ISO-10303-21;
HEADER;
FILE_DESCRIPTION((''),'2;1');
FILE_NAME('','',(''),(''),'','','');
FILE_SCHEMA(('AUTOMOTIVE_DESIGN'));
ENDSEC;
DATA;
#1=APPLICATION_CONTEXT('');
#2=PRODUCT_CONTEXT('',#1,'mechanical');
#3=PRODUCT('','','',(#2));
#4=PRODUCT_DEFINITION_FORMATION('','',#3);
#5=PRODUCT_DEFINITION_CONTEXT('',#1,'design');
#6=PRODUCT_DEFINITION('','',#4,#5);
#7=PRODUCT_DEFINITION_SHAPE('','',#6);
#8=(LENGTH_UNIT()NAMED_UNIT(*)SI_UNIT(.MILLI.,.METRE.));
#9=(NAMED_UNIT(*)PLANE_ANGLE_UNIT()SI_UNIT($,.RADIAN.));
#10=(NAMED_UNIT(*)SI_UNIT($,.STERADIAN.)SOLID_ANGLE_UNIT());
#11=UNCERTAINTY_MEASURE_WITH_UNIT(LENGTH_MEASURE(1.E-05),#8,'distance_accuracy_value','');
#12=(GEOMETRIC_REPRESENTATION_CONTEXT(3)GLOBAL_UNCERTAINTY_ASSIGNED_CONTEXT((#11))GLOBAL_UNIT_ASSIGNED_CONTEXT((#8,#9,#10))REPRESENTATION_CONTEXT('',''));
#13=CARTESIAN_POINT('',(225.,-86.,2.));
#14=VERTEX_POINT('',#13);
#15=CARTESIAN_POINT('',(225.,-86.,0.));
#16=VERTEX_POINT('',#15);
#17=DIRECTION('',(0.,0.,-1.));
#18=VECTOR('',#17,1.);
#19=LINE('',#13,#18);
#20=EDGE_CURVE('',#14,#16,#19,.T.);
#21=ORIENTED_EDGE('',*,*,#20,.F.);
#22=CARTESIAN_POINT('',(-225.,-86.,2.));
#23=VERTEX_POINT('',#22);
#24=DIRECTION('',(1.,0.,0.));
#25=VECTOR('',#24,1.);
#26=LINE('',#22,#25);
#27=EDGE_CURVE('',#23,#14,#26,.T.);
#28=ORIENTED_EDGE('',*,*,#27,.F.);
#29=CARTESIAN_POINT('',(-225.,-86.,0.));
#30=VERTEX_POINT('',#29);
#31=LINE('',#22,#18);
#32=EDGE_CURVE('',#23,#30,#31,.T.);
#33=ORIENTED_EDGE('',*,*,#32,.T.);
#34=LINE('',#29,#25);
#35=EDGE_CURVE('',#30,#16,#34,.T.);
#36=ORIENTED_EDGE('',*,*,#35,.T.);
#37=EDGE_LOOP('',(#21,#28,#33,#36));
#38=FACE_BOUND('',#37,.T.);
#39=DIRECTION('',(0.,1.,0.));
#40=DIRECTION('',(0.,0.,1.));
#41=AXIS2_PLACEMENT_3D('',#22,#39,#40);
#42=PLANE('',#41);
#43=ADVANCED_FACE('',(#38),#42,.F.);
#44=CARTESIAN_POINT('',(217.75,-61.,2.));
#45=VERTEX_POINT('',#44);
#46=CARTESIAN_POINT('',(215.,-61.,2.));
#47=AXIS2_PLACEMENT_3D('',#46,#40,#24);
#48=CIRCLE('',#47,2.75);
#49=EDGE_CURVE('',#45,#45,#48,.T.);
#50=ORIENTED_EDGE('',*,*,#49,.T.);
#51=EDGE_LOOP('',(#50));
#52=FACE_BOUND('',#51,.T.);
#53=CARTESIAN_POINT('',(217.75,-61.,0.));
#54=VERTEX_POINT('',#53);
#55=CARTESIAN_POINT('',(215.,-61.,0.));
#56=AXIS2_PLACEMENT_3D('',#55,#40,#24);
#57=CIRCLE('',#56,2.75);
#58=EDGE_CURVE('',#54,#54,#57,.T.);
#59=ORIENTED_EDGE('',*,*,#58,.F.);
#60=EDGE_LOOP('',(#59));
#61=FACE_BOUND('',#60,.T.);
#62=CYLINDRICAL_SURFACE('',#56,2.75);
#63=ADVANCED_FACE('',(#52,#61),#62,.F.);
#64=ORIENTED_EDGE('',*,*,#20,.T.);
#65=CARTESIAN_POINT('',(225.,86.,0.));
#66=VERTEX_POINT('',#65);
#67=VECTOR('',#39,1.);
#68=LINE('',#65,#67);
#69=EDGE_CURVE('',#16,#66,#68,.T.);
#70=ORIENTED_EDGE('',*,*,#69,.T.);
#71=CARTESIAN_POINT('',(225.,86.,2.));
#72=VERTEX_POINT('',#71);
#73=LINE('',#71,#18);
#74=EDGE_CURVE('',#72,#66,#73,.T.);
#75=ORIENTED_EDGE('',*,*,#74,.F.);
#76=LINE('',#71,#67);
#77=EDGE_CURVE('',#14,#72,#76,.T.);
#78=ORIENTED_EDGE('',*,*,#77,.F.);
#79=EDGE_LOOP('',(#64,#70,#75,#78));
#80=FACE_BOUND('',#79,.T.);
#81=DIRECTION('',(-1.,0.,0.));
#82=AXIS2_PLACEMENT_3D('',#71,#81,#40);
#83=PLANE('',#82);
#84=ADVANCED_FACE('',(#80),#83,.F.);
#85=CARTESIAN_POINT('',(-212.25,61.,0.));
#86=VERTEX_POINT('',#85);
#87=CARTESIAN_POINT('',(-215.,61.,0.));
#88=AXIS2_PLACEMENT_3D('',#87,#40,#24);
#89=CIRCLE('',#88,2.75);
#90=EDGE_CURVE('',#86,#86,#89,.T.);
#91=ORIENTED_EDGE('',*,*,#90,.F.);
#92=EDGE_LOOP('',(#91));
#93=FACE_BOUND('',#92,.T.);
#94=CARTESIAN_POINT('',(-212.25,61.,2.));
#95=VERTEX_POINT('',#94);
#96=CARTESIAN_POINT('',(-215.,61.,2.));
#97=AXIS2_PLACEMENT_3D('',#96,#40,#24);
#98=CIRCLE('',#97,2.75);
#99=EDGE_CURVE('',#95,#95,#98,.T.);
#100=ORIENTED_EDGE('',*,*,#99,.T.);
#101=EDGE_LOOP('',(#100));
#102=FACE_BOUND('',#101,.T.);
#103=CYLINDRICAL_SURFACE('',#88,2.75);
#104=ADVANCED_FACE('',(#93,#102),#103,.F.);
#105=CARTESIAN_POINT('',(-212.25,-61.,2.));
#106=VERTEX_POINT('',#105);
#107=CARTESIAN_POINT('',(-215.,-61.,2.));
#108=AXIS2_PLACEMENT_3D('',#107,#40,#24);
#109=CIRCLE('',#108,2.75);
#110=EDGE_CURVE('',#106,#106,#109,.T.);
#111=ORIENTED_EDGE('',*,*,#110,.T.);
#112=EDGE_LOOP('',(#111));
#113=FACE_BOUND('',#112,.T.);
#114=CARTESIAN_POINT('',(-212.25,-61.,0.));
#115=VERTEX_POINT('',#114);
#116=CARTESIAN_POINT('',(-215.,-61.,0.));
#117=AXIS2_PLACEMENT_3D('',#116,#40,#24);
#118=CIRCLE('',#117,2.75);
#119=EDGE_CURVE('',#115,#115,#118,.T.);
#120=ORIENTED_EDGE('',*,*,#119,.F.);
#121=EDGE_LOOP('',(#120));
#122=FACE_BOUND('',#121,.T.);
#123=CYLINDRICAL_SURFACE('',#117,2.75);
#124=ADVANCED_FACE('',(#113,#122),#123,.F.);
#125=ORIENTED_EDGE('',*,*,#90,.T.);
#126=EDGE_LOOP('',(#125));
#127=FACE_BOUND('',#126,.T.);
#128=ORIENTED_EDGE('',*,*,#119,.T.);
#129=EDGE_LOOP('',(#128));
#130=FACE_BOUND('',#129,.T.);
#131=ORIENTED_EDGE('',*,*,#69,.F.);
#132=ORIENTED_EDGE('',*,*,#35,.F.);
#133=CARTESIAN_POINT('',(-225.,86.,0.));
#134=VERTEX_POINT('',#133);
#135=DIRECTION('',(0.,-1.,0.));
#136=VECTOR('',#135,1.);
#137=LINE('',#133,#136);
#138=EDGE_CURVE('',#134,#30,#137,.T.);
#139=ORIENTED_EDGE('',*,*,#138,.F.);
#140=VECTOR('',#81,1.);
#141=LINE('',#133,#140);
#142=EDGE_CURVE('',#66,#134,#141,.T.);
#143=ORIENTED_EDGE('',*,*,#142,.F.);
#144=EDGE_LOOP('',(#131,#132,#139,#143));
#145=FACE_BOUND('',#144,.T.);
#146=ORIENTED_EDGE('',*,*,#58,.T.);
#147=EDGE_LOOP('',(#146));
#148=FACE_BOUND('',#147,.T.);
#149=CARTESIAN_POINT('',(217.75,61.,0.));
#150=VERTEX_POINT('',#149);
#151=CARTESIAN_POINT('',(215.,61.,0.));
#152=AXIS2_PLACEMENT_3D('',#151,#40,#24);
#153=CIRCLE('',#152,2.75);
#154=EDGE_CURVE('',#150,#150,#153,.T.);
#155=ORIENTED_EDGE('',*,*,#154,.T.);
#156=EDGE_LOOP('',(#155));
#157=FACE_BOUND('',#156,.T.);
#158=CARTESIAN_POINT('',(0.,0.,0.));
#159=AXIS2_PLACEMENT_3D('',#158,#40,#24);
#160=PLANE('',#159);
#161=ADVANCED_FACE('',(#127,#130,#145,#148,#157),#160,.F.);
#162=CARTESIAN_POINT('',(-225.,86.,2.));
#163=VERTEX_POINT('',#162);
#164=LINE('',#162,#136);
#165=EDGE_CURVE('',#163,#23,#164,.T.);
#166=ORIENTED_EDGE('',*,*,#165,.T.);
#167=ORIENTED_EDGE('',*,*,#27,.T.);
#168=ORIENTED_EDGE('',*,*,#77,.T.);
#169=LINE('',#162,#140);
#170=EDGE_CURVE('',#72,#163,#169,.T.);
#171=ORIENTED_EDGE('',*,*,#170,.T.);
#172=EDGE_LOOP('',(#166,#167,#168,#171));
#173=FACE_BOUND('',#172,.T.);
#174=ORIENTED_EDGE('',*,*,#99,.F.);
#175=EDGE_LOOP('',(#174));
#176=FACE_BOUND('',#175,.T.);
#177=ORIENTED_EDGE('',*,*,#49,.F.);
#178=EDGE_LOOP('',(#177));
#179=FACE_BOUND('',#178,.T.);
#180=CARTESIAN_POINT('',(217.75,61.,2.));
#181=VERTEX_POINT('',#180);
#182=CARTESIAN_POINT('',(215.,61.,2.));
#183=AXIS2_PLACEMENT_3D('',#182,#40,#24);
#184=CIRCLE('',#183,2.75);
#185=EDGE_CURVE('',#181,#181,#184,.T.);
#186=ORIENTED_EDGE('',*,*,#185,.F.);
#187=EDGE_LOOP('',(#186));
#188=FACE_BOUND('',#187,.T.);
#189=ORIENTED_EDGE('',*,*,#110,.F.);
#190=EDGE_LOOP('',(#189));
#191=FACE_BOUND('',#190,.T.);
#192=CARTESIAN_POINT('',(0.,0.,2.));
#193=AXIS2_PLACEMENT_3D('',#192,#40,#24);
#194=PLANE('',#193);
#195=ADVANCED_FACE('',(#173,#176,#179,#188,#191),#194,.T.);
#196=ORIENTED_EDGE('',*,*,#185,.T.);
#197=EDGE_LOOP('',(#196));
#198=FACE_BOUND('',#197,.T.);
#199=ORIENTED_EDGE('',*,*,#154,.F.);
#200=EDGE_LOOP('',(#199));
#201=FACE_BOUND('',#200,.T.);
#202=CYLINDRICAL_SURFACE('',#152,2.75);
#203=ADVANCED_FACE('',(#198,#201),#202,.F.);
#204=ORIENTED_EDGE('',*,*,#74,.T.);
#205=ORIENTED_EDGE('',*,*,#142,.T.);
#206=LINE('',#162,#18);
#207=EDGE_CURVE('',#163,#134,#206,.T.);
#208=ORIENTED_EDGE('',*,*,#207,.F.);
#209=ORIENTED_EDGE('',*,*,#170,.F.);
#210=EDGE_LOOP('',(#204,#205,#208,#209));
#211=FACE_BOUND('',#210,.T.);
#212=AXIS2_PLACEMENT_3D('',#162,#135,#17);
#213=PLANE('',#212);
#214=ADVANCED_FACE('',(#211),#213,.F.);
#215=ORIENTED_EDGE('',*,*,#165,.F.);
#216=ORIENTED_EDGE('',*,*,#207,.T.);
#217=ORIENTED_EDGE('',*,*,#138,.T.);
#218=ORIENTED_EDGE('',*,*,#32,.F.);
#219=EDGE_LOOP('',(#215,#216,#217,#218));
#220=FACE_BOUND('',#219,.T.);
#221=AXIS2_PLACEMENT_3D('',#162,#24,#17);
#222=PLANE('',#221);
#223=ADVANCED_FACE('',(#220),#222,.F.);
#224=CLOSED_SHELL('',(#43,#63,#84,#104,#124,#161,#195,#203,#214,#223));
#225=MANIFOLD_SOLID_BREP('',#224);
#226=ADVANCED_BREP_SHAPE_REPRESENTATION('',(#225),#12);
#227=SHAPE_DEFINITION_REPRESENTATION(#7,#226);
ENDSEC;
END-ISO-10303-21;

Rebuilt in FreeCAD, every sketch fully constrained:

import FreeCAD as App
import Part
import Sketcher

doc = App.newDocument("Part")
body = doc.addObject("PartDesign::Body", "Body")

sketch1 = doc.addObject("Sketcher::SketchObject", "Sketch")
body.addObject(sketch1)
sketch1.AttachmentSupport = (doc.XY_Plane, [""])
sketch1.MapMode = "FlatFace"
sketch1.addGeometry(Part.LineSegment(App.Vector(-225, 86, 0), App.Vector(-225, -86, 0)), False)
sketch1.addGeometry(Part.LineSegment(App.Vector(-225, -86, 0), App.Vector(225, -86, 0)), False)
sketch1.addGeometry(Part.LineSegment(App.Vector(225, -86, 0), App.Vector(225, 86, 0)), False)
sketch1.addGeometry(Part.LineSegment(App.Vector(225, 86, 0), App.Vector(-225, 86, 0)), False)
sketch1.addConstraint(Sketcher.Constraint("Coincident", 0, 2, 1, 1))
sketch1.addConstraint(Sketcher.Constraint("Coincident", 1, 2, 2, 1))
sketch1.addConstraint(Sketcher.Constraint("Coincident", 2, 2, 3, 1))
sketch1.addConstraint(Sketcher.Constraint("Coincident", 3, 2, 0, 1))
sketch1.addConstraint(Sketcher.Constraint("Vertical", 0))
sketch1.addConstraint(Sketcher.Constraint("Horizontal", 1))
sketch1.addConstraint(Sketcher.Constraint("Vertical", 2))
sketch1.addConstraint(Sketcher.Constraint("Horizontal", 3))
sketch1.addConstraint(Sketcher.Constraint("Symmetric", 0, 2, 2, 2, -1, 1))
sketch1.addConstraint(Sketcher.Constraint("DistanceX", 1, 1, 1, 2, 450.0))
sketch1.addConstraint(Sketcher.Constraint("DistanceY", 0, 2, 0, 1, 172.0))
pad1 = doc.addObject("PartDesign::Pad", "Pad")
body.addObject(pad1)
pad1.Profile = sketch1
pad1.Length = 2

sketch2 = doc.addObject("Sketcher::SketchObject", "Sketch001")
body.addObject(sketch2)
sketch2.AttachmentSupport = (doc.XY_Plane, [""])
sketch2.MapMode = "FlatFace"
sketch2.AttachmentOffset = App.Placement(App.Vector(0, 0, 2), App.Rotation())
sketch2.addGeometry(Part.Circle(App.Vector(-215, 61, 0), App.Vector(0, 0, 1), 2.8), False)
sketch2.addGeometry(Part.Circle(App.Vector(215, 61, 0), App.Vector(0, 0, 1), 2.8), False)
sketch2.addGeometry(Part.Circle(App.Vector(215, -61, 0), App.Vector(0, 0, 1), 2.8), False)
sketch2.addGeometry(Part.Circle(App.Vector(-215, -61, 0), App.Vector(0, 0, 1), 2.8), False)
sketch2.addConstraint(Sketcher.Constraint("Equal", 0, 1))
sketch2.addConstraint(Sketcher.Constraint("Equal", 1, 2))
sketch2.addConstraint(Sketcher.Constraint("Equal", 2, 3))
sketch2.addConstraint(Sketcher.Constraint("Symmetric", 0, 3, 2, 3, -1, 1))
sketch2.addConstraint(Sketcher.Constraint("Symmetric", 1, 3, 3, 3, -1, 1))
sketch2.addConstraint(Sketcher.Constraint("Symmetric", 0, 3, 1, 3, -2))
sketch2.addConstraint(Sketcher.Constraint("Diameter", 0, 5.5))
sketch2.addConstraint(Sketcher.Constraint("DistanceX", 0, 3, -1, 1, 215.0))
sketch2.addConstraint(Sketcher.Constraint("DistanceY", -1, 1, 0, 3, 61.0))
pocket1 = doc.addObject("PartDesign::Pocket", "Pocket")
body.addObject(pocket1)
pocket1.Profile = sketch2
pocket1.Type = "ThroughAll"

doc.recompute()
